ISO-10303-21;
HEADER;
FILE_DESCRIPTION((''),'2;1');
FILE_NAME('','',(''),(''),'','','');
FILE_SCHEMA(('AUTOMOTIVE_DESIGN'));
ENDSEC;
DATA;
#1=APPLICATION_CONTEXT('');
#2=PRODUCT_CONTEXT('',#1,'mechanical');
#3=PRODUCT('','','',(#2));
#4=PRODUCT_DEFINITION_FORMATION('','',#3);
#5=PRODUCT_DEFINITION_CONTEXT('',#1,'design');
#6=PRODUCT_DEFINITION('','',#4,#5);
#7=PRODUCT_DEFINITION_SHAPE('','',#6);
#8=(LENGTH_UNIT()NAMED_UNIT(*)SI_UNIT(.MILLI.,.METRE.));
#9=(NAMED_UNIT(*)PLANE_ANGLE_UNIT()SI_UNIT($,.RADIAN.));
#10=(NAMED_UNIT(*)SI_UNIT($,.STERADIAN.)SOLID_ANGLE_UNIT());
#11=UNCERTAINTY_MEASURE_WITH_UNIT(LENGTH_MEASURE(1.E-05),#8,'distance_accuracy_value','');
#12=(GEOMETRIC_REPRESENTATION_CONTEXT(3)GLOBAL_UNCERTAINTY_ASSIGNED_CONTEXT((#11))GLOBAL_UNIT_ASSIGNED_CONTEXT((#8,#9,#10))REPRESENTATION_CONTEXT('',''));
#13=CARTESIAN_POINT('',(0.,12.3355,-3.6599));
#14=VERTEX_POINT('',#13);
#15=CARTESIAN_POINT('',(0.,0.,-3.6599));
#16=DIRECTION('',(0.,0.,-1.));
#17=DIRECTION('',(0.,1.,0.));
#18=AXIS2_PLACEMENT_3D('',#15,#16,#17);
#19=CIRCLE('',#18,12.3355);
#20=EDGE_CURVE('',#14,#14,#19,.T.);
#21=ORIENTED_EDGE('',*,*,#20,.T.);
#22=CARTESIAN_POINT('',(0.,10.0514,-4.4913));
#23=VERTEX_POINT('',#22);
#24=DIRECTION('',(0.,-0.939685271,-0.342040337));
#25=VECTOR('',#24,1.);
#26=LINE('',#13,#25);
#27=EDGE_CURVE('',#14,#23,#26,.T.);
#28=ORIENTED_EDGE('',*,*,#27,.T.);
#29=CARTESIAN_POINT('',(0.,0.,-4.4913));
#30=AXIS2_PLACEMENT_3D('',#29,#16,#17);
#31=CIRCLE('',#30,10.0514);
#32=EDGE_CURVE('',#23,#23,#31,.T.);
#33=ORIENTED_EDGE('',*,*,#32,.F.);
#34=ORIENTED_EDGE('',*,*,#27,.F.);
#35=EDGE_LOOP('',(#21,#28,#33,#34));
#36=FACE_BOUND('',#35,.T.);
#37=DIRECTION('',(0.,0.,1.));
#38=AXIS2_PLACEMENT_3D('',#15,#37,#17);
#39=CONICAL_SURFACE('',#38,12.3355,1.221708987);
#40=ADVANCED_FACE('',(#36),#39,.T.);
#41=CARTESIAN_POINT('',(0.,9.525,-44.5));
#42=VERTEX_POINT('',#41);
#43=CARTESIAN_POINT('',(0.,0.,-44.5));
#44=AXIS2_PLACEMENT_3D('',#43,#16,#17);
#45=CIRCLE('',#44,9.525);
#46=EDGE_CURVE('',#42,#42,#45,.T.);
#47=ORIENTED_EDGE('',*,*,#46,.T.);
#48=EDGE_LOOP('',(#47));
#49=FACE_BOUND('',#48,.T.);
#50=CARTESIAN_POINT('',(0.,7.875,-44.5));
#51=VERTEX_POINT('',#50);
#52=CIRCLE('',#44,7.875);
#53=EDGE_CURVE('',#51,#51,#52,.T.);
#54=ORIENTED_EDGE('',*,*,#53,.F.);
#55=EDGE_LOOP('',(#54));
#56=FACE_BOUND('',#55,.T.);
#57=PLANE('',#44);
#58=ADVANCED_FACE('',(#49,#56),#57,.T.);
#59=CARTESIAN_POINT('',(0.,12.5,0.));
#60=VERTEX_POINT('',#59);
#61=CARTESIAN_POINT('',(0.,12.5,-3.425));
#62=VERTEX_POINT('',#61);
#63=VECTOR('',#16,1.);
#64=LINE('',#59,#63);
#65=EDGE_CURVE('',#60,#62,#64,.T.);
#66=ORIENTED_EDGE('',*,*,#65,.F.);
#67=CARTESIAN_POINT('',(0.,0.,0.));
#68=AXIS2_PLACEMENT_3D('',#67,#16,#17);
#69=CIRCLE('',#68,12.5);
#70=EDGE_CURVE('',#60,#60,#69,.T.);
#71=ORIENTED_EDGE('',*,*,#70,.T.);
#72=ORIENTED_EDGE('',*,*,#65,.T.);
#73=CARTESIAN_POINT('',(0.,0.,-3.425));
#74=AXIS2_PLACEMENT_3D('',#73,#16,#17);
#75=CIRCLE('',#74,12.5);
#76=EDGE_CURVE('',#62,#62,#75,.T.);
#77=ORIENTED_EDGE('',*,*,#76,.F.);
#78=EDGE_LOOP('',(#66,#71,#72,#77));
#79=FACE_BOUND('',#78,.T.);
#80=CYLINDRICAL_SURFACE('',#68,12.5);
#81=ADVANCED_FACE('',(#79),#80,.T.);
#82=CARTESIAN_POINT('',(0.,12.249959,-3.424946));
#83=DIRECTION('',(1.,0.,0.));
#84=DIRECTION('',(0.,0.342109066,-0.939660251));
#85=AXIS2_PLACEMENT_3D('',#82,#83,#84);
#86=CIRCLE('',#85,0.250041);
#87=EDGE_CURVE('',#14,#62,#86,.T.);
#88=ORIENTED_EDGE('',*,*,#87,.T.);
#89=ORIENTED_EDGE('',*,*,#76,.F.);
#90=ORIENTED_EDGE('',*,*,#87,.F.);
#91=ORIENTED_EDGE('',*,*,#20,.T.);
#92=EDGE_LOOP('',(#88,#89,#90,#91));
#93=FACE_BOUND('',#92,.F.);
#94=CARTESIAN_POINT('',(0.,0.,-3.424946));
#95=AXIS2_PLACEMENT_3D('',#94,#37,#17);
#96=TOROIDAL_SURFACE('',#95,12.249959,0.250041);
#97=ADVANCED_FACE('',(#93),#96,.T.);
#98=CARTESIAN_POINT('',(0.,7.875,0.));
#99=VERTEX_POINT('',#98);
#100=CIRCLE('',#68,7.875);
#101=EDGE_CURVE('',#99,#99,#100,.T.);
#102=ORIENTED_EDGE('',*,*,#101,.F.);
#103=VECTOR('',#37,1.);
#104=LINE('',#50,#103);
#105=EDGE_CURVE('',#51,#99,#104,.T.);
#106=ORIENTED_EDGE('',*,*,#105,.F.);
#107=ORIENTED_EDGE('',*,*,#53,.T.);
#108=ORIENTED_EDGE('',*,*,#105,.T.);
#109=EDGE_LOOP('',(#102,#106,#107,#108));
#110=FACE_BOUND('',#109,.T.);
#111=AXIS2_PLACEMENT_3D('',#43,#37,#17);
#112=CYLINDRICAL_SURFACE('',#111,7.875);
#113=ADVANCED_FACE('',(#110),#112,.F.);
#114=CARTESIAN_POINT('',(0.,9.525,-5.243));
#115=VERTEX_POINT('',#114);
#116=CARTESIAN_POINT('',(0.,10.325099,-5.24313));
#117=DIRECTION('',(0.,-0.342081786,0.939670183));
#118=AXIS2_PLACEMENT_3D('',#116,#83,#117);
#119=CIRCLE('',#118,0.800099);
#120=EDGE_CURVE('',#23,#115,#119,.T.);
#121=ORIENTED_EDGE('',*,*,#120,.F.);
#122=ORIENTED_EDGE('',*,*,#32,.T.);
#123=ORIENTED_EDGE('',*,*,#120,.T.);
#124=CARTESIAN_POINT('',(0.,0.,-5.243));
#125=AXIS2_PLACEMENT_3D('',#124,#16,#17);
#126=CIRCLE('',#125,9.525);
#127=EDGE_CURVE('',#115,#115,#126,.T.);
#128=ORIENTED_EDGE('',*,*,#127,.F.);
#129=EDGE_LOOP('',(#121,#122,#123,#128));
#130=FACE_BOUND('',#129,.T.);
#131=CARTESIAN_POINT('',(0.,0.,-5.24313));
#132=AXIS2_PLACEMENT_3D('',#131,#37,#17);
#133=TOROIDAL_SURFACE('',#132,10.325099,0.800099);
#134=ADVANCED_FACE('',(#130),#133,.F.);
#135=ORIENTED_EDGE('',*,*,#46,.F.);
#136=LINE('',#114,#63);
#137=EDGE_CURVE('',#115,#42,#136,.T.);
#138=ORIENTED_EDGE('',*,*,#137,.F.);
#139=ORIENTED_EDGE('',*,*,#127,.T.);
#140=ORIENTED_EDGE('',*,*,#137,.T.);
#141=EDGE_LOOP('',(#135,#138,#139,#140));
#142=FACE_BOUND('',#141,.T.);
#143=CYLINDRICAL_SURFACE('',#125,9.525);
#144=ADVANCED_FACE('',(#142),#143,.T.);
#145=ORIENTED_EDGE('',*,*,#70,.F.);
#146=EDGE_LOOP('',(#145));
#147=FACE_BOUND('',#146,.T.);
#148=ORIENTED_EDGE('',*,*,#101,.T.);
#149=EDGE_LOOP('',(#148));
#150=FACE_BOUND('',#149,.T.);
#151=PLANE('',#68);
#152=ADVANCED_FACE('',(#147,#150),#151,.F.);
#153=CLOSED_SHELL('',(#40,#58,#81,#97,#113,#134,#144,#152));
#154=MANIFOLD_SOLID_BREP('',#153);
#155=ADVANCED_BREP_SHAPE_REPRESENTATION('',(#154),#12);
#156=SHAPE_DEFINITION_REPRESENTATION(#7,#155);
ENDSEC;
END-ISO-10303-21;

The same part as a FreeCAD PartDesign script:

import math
import FreeCAD as App
import Part
import Sketcher
Q = App.Units.Quantity

doc = App.newDocument("Part")
params = doc.addObject("Spreadsheet::Sheet", "Params")
for row, (alias, value) in enumerate([
    ("sketch1_radius", "0.8 mm"),
    ("sketch1_radius2", "0.25 mm"),
    ("sketch1_height", "44.5 mm"),
    ("sketch1_width", "1.65 mm"),
    ("revolution_angle", "360 deg"),
], start=1):
    params.set(f"A{row}", alias)
    params.set(f"B{row}", "=" + value)
    params.setAlias(f"B{row}", alias)

body = doc.addObject("PartDesign::Body", "Body")

# Sketch on YZ plane
sketch1 = body.newObject("Sketcher::SketchObject", "Sketch")
sketch1.AttachmentSupport = (doc.getObject("YZ_Plane"), [""])
sketch1.MapMode = "FlatFace"
sketch1.addGeometry(Part.LineSegment(App.Vector(7.88, 0, 0), App.Vector(7.88, -44.5, 0)), False)
sketch1.addGeometry(Part.LineSegment(App.Vector(7.88, -44.5, 0), App.Vector(9.53, -44.5, 0)), False)
sketch1.addGeometry(Part.LineSegment(App.Vector(9.53, -44.5, 0), App.Vector(9.53, -5.24, 0)), False)
sketch1.addGeometry(Part.ArcOfCircle(Part.Circle(App.Vector(10.32, -5.24, 0), App.Vector(0, 0, 1), 0.8), math.radians(110), math.radians(180)), False)
sketch1.addGeometry(Part.LineSegment(App.Vector(10.05, -4.49, 0), App.Vector(12.34, -3.66, 0)), False)
sketch1.addGeometry(Part.ArcOfCircle(Part.Circle(App.Vector(12.25, -3.42, 0), App.Vector(0, 0, 1), 0.25), math.radians(-70), math.radians(0)), False)
sketch1.addGeometry(Part.LineSegment(App.Vector(12.5, -3.42, 0), App.Vector(12.5, 0, 0)), False)
sketch1.addGeometry(Part.LineSegment(App.Vector(12.5, 0, 0), App.Vector(7.88, 0, 0)), False)
sketch1.addConstraint(Sketcher.Constraint("Coincident", 0, 2, 1, 1))
sketch1.addConstraint(Sketcher.Constraint("Coincident", 1, 2, 2, 1))
sketch1.addConstraint(Sketcher.Constraint("Tangent", 2, 2, 3, 2))
sketch1.addConstraint(Sketcher.Constraint("Tangent", 3, 1, 4, 1))
sketch1.addConstraint(Sketcher.Constraint("Tangent", 4, 2, 5, 1))
sketch1.addConstraint(Sketcher.Constraint("Tangent", 5, 2, 6, 1))
sketch1.addConstraint(Sketcher.Constraint("Coincident", 6, 2, 7, 1))
sketch1.addConstraint(Sketcher.Constraint("Coincident", 7, 2, 0, 1))
sketch1.addConstraint(Sketcher.Constraint("Vertical", 0))
sketch1.addConstraint(Sketcher.Constraint("Horizontal", 1))
sketch1.addConstraint(Sketcher.Constraint("Vertical", 2))
sketch1.addConstraint(Sketcher.Constraint("Vertical", 6))
sketch1.addConstraint(Sketcher.Constraint("Horizontal", 7))
sketch1.addConstraint(Sketcher.Constraint("PointOnObject", 6, 2, -1))
sketch1.addConstraint(Sketcher.Constraint("Radius", 3, Q("0.8 mm")))
sketch1.addConstraint(Sketcher.Constraint("Radius", 5, Q("0.25 mm")))
sketch1.addConstraint(Sketcher.Constraint("DistanceY", 0, 2, 0, 1, Q("44.5 mm")))
sketch1.addConstraint(Sketcher.Constraint("DistanceX", 1, 1, 1, 2, Q("1.65 mm")))
sketch1.addConstraint(Sketcher.Constraint("DistanceY", 6, 1, 6, 2, Q("3.425 mm")))
sketch1.addConstraint(Sketcher.Constraint("DistanceX", -1, 1, 5, 2, Q("12.5 mm")))
sketch1.addConstraint(Sketcher.Constraint("DistanceX", 7, 2, 7, 1, Q("4.625 mm")))
sketch1.addConstraint(Sketcher.Constraint("DistanceY", 2, 1, 2, 2, Q("39.257 mm")))
sketch1.setExpression("Constraints[14]", "Params.sketch1_radius")
sketch1.setExpression("Constraints[15]", "Params.sketch1_radius2")
sketch1.setExpression("Constraints[16]", "Params.sketch1_height")
sketch1.setExpression("Constraints[17]", "Params.sketch1_width")
revolution = body.newObject("PartDesign::Revolution", "Revolution")
revolution.Profile = sketch1
revolution.ReferenceAxis = (sketch1, ["V_Axis"])
revolution.setExpression("Angle", "Params.revolution_angle")

doc.recompute()
